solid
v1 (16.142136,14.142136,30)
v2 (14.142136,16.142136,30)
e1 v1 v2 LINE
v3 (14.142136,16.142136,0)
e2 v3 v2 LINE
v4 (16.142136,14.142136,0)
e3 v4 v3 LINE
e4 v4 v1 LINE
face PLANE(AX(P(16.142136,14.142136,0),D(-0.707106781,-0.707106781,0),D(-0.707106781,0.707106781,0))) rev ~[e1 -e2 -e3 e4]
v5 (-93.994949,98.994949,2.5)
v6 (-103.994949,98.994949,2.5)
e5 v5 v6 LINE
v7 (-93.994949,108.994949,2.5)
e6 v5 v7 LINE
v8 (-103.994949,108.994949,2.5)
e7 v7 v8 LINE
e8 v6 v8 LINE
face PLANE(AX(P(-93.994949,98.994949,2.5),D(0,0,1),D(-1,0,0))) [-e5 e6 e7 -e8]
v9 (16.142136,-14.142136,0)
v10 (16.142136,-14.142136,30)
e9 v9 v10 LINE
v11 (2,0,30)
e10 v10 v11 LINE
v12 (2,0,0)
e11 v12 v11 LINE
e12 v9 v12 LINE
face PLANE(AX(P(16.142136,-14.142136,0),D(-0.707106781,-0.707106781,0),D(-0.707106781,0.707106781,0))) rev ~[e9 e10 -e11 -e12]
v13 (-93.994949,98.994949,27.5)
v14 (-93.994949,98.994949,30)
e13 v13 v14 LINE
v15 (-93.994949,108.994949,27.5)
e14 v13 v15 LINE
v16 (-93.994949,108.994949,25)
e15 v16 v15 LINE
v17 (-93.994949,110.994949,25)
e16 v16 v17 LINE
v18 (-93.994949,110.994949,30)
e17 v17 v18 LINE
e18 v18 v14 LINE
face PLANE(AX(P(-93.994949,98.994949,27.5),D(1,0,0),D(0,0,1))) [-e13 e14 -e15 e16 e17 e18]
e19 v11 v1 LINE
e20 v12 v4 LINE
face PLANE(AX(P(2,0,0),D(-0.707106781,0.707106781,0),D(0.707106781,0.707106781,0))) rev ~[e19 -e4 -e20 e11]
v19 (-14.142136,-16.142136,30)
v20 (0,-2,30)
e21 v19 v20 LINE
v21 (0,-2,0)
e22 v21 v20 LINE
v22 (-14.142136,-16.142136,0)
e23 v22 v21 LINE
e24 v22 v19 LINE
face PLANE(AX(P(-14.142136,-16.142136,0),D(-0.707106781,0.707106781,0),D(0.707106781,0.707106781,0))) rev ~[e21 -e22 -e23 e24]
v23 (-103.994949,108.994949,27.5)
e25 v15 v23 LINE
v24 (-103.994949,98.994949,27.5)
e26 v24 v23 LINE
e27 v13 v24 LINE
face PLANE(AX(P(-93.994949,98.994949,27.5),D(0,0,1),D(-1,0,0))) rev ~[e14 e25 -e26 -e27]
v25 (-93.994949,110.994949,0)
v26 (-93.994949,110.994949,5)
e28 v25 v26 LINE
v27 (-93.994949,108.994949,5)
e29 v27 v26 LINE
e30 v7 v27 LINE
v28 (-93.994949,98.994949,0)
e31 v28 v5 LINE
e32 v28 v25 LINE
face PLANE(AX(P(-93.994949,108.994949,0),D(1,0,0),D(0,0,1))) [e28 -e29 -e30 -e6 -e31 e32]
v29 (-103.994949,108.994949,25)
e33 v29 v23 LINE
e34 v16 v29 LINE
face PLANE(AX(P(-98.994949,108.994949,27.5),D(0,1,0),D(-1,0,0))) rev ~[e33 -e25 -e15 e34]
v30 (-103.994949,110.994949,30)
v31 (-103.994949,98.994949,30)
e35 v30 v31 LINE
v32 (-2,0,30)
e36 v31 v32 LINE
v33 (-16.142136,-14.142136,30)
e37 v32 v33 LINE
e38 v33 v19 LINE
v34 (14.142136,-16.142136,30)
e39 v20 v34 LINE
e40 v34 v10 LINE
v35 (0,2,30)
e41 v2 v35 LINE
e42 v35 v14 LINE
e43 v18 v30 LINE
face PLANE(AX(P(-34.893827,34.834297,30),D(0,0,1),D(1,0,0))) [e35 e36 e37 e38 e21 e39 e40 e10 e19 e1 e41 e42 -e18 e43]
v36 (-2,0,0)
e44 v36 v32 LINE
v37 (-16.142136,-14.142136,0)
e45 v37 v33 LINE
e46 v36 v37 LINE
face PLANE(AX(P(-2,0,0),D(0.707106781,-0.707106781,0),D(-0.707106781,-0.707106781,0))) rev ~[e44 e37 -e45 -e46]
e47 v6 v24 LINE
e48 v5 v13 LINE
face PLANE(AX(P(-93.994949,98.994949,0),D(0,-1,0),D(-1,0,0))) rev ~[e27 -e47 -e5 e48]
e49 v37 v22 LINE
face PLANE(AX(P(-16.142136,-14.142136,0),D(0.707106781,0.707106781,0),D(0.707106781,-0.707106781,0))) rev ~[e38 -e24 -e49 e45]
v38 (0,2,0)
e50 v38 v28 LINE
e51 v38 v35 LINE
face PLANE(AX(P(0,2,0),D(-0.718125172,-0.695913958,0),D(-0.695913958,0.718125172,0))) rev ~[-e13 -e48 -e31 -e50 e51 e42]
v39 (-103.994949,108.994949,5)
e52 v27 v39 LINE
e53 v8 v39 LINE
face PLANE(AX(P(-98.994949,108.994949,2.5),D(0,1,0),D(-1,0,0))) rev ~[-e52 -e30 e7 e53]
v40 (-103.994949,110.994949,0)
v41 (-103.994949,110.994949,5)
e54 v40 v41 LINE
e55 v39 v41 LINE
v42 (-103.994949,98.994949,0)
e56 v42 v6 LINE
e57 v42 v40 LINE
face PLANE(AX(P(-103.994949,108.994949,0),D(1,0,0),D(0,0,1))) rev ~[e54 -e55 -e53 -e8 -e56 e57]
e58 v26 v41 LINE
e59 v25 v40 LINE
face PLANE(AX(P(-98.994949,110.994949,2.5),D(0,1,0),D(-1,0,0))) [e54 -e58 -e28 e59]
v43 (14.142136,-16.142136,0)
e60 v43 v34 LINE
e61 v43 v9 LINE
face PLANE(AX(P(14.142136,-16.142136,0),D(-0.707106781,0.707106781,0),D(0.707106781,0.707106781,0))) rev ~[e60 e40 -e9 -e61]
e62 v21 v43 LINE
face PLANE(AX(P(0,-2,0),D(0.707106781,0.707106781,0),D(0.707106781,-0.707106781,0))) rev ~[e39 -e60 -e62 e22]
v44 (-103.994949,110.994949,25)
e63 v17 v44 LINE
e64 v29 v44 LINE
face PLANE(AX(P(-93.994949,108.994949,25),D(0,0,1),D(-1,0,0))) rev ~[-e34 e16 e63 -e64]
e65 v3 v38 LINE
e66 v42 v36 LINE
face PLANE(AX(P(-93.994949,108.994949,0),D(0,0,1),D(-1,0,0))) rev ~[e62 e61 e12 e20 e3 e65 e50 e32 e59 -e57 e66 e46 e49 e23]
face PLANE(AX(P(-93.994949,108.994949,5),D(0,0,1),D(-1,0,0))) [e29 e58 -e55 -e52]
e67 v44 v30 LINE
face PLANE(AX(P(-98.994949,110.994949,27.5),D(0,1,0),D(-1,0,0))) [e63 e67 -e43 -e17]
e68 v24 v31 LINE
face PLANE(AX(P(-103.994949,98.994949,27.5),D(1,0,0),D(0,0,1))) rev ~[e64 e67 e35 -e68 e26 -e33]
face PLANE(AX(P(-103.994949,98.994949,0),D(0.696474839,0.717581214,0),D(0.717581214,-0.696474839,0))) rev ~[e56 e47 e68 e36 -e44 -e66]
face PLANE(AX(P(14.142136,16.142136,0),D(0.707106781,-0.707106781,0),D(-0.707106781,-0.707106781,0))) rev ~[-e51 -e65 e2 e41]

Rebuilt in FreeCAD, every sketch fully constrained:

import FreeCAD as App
import Part
import Sketcher

doc = App.newDocument("Part")
body = doc.addObject("PartDesign::Body", "Body")

# Sketch on XY plane
sketch1 = body.newObject("Sketcher::SketchObject", "Sketch")
sketch1.AttachmentSupport = (doc.getObject("XY_Plane"), [""])
sketch1.MapMode = "FlatFace"
sketch1.addGeometry(Part.LineSegment(App.Vector(-94, 99, 0), App.Vector(-104, 99, 0)), False)
sketch1.addGeometry(Part.LineSegment(App.Vector(-104, 99, 0), App.Vector(-2, 0, 0)), False)
sketch1.addGeometry(Part.LineSegment(App.Vector(-2, 0, 0), App.Vector(-16.1, -14.1, 0)), False)
sketch1.addGeometry(Part.LineSegment(App.Vector(-16.1, -14.1, 0), App.Vector(-14.1, -16.1, 0)), False)
sketch1.addGeometry(Part.LineSegment(App.Vector(-14.1, -16.1, 0), App.Vector(0, -2, 0)), False)
sketch1.addGeometry(Part.LineSegment(App.Vector(0, -2, 0), App.Vector(14.1, -16.1, 0)), False)
sketch1.addGeometry(Part.LineSegment(App.Vector(14.1, -16.1, 0), App.Vector(16.1, -14.1, 0)), False)
sketch1.addGeometry(Part.LineSegment(App.Vector(16.1, -14.1, 0), App.Vector(2, 0, 0)), False)
sketch1.addGeometry(Part.LineSegment(App.Vector(2, 0, 0), App.Vector(16.1, 14.1, 0)), False)
sketch1.addGeometry(Part.LineSegment(App.Vector(16.1, 14.1, 0), App.Vector(14.1, 16.1, 0)), False)
sketch1.addGeometry(Part.LineSegment(App.Vector(14.1, 16.1, 0), App.Vector(0, 2, 0)), False)
sketch1.addGeometry(Part.LineSegment(App.Vector(0, 2, 0), App.Vector(-94, 99, 0)), False)
sketch1.addConstraint(Sketcher.Constraint("Coincident", 0, 2, 1, 1))
sketch1.addConstraint(Sketcher.Constraint("Coincident", 1, 2, 2, 1))
sketch1.addConstraint(Sketcher.Constraint("Coincident", 2, 2, 3, 1))
sketch1.addConstraint(Sketcher.Constraint("Coincident", 3, 2, 4, 1))
sketch1.addConstraint(Sketcher.Constraint("Coincident", 4, 2, 5, 1))
sketch1.addConstraint(Sketcher.Constraint("Coincident", 5, 2, 6, 1))
sketch1.addConstraint(Sketcher.Constraint("Coincident", 6, 2, 7, 1))
sketch1.addConstraint(Sketcher.Constraint("Coincident", 7, 2, 8, 1))
sketch1.addConstraint(Sketcher.Constraint("Coincident", 8, 2, 9, 1))
sketch1.addConstraint(Sketcher.Constraint("Coincident", 9, 2, 10, 1))
sketch1.addConstraint(Sketcher.Constraint("Coincident", 10, 2, 11, 1))
sketch1.addConstraint(Sketcher.Constraint("Coincident", 11, 2, 0, 1))
sketch1.addConstraint(Sketcher.Constraint("Horizontal", 0))
sketch1.addConstraint(Sketcher.Constraint("Symmetric", 1, 2, 7, 2, -1, 1))
sketch1.addConstraint(Sketcher.Constraint("Symmetric", 2, 2, 8, 2, -1, 1))
sketch1.addConstraint(Sketcher.Constraint("Symmetric", 3, 2, 9, 2, -1, 1))
sketch1.addConstraint(Sketcher.Constraint("Symmetric", 4, 2, 10, 2, -1, 1))
sketch1.addConstraint(Sketcher.Constraint("Symmetric", 3, 2, 5, 2, -2))
sketch1.addConstraint(Sketcher.Constraint("Symmetric", 2, 2, 6, 2, -2))
sketch1.addConstraint(Sketcher.Constraint("PointOnObject", 1, 2, -1))
sketch1.addConstraint(Sketcher.Constraint("PointOnObject", 4, 2, -2))
sketch1.addConstraint(Sketcher.Constraint("Perpendicular", 2, 3))
sketch1.addConstraint(Sketcher.Constraint("Perpendicular", 3, 4))
sketch1.addConstraint(Sketcher.Constraint("Perpendicular", 4, 5))
sketch1.addConstraint(Sketcher.Constraint("Equal", 2, 4))
sketch1.addConstraint(Sketcher.Constraint("DistanceX", 0, 2, 0, 1, 10.0))
sketch1.addConstraint(Sketcher.Constraint("Distance", 2, 20.000001))
sketch1.addConstraint(Sketcher.Constraint("DistanceX", 1, 2, -1, 1, 2.0))
sketch1.addConstraint(Sketcher.Constraint("Distance", 1, 142.13715))
sketch1.addConstraint(Sketcher.Constraint("Distance", 11, 135.066911))
pad1 = body.newObject("PartDesign::Pad", "Pad")
pad1.Profile = sketch1
pad1.Length = 30

# Sketch on XZ plane
sketch2 = body.newObject("Sketcher::SketchObject", "Sketch001")
sketch2.AttachmentSupport = (doc.getObject("XZ_Plane"), [""])
sketch2.MapMode = "FlatFace"
sketch2.AttachmentOffset = App.Placement(App.Vector(0, 0, -98.994949), App.Rotation())
sketch2.addGeometry(Part.LineSegment(App.Vector(-94, 2.5, 0), App.Vector(-94, 0, 0)), False)
sketch2.addGeometry(Part.LineSegment(App.Vector(-94, 0, 0), App.Vector(-104, 0, 0)), False)
sketch2.addGeometry(Part.LineSegment(App.Vector(-104, 0, 0), App.Vector(-104, 2.5, 0)), False)
sketch2.addGeometry(Part.LineSegment(App.Vector(-104, 2.5, 0), App.Vector(-94, 2.5, 0)), False)
sketch2.addGeometry(Part.LineSegment(App.Vector(-94, 30, 0), App.Vector(-94, 27.5, 0)), False)
sketch2.addGeometry(Part.LineSegment(App.Vector(-94, 27.5, 0), App.Vector(-104, 27.5, 0)), False)
sketch2.addGeometry(Part.LineSegment(App.Vector(-104, 27.5, 0), App.Vector(-104, 30, 0)), False)
sketch2.addGeometry(Part.LineSegment(App.Vector(-104, 30, 0), App.Vector(-94, 30, 0)), False)
sketch2.addConstraint(Sketcher.Constraint("Coincident", 0, 2, 1, 1))
sketch2.addConstraint(Sketcher.Constraint("Coincident", 1, 2, 2, 1))
sketch2.addConstraint(Sketcher.Constraint("Coincident", 2, 2, 3, 1))
sketch2.addConstraint(Sketcher.Constraint("Coincident", 3, 2, 0, 1))
sketch2.addConstraint(Sketcher.Constraint("Coincident", 4, 2, 5, 1))
sketch2.addConstraint(Sketcher.Constraint("Coincident", 5, 2, 6, 1))
sketch2.addConstraint(Sketcher.Constraint("Coincident", 6, 2, 7, 1))
sketch2.addConstraint(Sketcher.Constraint("Coincident", 7, 2, 4, 1))
sketch2.addConstraint(Sketcher.Constraint("Vertical", 0))
sketch2.addConstraint(Sketcher.Constraint("Horizontal", 1))
sketch2.addConstraint(Sketcher.Constraint("Vertical", 2))
sketch2.addConstraint(Sketcher.Constraint("Horizontal", 3))
sketch2.addConstraint(Sketcher.Constraint("Vertical", 4))
sketch2.addConstraint(Sketcher.Constraint("Horizontal", 5))
sketch2.addConstraint(Sketcher.Constraint("Vertical", 6))
sketch2.addConstraint(Sketcher.Constraint("Horizontal", 7))
sketch2.addConstraint(Sketcher.Constraint("PointOnObject", 0, 2, -1))
sketch2.addConstraint(Sketcher.Constraint("Vertical", 3, 2, 4, 2))
sketch2.addConstraint(Sketcher.Constraint("Vertical", 2, 2, 5, 2))
sketch2.addConstraint(Sketcher.Constraint("Equal", 2, 4))
sketch2.addConstraint(Sketcher.Constraint("DistanceX", 1, 2, 1, 1, 10.0))
sketch2.addConstraint(Sketcher.Constraint("DistanceY", 0, 2, 0, 1, 2.5))
sketch2.addConstraint(Sketcher.Constraint("DistanceY", -1, 1, 6, 2, 30.0))
sketch2.addConstraint(Sketcher.Constraint("DistanceX", 0, 2, -1, 1, 93.994949))
pad2 = body.newObject("PartDesign::Pad", "Pad001")
pad2.Profile = sketch2
pad2.Length = 10
pad2.Reversed = True

# Sketch on XZ plane
sketch3 = body.newObject("Sketcher::SketchObject", "Sketch002")
sketch3.AttachmentSupport = (doc.getObject("XZ_Plane"), [""])
sketch3.MapMode = "FlatFace"
sketch3.AttachmentOffset = App.Placement(App.Vector(0, 0, -108.994949), App.Rotation())
sketch3.addGeometry(Part.LineSegment(App.Vector(-94, 5, 0), App.Vector(-94, 0, 0)), False)
sketch3.addGeometry(Part.LineSegment(App.Vector(-94, 0, 0), App.Vector(-104, 0, 0)), False)
sketch3.addGeometry(Part.LineSegment(App.Vector(-104, 0, 0), App.Vector(-104, 5, 0)), False)
sketch3.addGeometry(Part.LineSegment(App.Vector(-104, 5, 0), App.Vector(-94, 5, 0)), False)
sketch3.addGeometry(Part.LineSegment(App.Vector(-94, 30, 0), App.Vector(-94, 25, 0)), False)
sketch3.addGeometry(Part.LineSegment(App.Vector(-94, 25, 0), App.Vector(-104, 25, 0)), False)
sketch3.addGeometry(Part.LineSegment(App.Vector(-104, 25, 0), App.Vector(-104, 30, 0)), False)
sketch3.addGeometry(Part.LineSegment(App.Vector(-104, 30, 0), App.Vector(-94, 30, 0)), False)
sketch3.addConstraint(Sketcher.Constraint("Coincident", 0, 2, 1, 1))
sketch3.addConstraint(Sketcher.Constraint("Coincident", 1, 2, 2, 1))
sketch3.addConstraint(Sketcher.Constraint("Coincident", 2, 2, 3, 1))
sketch3.addConstraint(Sketcher.Constraint("Coincident", 3, 2, 0, 1))
sketch3.addConstraint(Sketcher.Constraint("Coincident", 4, 2, 5, 1))
sketch3.addConstraint(Sketcher.Constraint("Coincident", 5, 2, 6, 1))
sketch3.addConstraint(Sketcher.Constraint("Coincident", 6, 2, 7, 1))
sketch3.addConstraint(Sketcher.Constraint("Coincident", 7, 2, 4, 1))
sketch3.addConstraint(Sketcher.Constraint("Vertical", 0))
sketch3.addConstraint(Sketcher.Constraint("Horizontal", 1))
sketch3.addConstraint(Sketcher.Constraint("Vertical", 2))
sketch3.addConstraint(Sketcher.Constraint("Horizontal", 3))
sketch3.addConstraint(Sketcher.Constraint("Vertical", 4))
sketch3.addConstraint(Sketcher.Constraint("Horizontal", 5))
sketch3.addConstraint(Sketcher.Constraint("Vertical", 6))
sketch3.addConstraint(Sketcher.Constraint("Horizontal", 7))
sketch3.addConstraint(Sketcher.Constraint("PointOnObject", 0, 2, -1))
sketch3.addConstraint(Sketcher.Constraint("Vertical", 3, 2, 4, 2))
sketch3.addConstraint(Sketcher.Constraint("Vertical", 2, 2, 5, 2))
sketch3.addConstraint(Sketcher.Constraint("Equal", 2, 4))
sketch3.addConstraint(Sketcher.Constraint("DistanceX", 1, 2, 1, 1, 10.0))
sketch3.addConstraint(Sketcher.Constraint("DistanceY", 0, 2, 0, 1, 5.0))
sketch3.addConstraint(Sketcher.Constraint("DistanceY", -1, 1, 4, 2, 25.0))
sketch3.addConstraint(Sketcher.Constraint("DistanceX", 0, 2, -1, 1, 93.994949))
pad3 = body.newObject("PartDesign::Pad", "Pad002")
pad3.Profile = sketch3
pad3.Length = 2
pad3.Reversed = True

doc.recompute()
